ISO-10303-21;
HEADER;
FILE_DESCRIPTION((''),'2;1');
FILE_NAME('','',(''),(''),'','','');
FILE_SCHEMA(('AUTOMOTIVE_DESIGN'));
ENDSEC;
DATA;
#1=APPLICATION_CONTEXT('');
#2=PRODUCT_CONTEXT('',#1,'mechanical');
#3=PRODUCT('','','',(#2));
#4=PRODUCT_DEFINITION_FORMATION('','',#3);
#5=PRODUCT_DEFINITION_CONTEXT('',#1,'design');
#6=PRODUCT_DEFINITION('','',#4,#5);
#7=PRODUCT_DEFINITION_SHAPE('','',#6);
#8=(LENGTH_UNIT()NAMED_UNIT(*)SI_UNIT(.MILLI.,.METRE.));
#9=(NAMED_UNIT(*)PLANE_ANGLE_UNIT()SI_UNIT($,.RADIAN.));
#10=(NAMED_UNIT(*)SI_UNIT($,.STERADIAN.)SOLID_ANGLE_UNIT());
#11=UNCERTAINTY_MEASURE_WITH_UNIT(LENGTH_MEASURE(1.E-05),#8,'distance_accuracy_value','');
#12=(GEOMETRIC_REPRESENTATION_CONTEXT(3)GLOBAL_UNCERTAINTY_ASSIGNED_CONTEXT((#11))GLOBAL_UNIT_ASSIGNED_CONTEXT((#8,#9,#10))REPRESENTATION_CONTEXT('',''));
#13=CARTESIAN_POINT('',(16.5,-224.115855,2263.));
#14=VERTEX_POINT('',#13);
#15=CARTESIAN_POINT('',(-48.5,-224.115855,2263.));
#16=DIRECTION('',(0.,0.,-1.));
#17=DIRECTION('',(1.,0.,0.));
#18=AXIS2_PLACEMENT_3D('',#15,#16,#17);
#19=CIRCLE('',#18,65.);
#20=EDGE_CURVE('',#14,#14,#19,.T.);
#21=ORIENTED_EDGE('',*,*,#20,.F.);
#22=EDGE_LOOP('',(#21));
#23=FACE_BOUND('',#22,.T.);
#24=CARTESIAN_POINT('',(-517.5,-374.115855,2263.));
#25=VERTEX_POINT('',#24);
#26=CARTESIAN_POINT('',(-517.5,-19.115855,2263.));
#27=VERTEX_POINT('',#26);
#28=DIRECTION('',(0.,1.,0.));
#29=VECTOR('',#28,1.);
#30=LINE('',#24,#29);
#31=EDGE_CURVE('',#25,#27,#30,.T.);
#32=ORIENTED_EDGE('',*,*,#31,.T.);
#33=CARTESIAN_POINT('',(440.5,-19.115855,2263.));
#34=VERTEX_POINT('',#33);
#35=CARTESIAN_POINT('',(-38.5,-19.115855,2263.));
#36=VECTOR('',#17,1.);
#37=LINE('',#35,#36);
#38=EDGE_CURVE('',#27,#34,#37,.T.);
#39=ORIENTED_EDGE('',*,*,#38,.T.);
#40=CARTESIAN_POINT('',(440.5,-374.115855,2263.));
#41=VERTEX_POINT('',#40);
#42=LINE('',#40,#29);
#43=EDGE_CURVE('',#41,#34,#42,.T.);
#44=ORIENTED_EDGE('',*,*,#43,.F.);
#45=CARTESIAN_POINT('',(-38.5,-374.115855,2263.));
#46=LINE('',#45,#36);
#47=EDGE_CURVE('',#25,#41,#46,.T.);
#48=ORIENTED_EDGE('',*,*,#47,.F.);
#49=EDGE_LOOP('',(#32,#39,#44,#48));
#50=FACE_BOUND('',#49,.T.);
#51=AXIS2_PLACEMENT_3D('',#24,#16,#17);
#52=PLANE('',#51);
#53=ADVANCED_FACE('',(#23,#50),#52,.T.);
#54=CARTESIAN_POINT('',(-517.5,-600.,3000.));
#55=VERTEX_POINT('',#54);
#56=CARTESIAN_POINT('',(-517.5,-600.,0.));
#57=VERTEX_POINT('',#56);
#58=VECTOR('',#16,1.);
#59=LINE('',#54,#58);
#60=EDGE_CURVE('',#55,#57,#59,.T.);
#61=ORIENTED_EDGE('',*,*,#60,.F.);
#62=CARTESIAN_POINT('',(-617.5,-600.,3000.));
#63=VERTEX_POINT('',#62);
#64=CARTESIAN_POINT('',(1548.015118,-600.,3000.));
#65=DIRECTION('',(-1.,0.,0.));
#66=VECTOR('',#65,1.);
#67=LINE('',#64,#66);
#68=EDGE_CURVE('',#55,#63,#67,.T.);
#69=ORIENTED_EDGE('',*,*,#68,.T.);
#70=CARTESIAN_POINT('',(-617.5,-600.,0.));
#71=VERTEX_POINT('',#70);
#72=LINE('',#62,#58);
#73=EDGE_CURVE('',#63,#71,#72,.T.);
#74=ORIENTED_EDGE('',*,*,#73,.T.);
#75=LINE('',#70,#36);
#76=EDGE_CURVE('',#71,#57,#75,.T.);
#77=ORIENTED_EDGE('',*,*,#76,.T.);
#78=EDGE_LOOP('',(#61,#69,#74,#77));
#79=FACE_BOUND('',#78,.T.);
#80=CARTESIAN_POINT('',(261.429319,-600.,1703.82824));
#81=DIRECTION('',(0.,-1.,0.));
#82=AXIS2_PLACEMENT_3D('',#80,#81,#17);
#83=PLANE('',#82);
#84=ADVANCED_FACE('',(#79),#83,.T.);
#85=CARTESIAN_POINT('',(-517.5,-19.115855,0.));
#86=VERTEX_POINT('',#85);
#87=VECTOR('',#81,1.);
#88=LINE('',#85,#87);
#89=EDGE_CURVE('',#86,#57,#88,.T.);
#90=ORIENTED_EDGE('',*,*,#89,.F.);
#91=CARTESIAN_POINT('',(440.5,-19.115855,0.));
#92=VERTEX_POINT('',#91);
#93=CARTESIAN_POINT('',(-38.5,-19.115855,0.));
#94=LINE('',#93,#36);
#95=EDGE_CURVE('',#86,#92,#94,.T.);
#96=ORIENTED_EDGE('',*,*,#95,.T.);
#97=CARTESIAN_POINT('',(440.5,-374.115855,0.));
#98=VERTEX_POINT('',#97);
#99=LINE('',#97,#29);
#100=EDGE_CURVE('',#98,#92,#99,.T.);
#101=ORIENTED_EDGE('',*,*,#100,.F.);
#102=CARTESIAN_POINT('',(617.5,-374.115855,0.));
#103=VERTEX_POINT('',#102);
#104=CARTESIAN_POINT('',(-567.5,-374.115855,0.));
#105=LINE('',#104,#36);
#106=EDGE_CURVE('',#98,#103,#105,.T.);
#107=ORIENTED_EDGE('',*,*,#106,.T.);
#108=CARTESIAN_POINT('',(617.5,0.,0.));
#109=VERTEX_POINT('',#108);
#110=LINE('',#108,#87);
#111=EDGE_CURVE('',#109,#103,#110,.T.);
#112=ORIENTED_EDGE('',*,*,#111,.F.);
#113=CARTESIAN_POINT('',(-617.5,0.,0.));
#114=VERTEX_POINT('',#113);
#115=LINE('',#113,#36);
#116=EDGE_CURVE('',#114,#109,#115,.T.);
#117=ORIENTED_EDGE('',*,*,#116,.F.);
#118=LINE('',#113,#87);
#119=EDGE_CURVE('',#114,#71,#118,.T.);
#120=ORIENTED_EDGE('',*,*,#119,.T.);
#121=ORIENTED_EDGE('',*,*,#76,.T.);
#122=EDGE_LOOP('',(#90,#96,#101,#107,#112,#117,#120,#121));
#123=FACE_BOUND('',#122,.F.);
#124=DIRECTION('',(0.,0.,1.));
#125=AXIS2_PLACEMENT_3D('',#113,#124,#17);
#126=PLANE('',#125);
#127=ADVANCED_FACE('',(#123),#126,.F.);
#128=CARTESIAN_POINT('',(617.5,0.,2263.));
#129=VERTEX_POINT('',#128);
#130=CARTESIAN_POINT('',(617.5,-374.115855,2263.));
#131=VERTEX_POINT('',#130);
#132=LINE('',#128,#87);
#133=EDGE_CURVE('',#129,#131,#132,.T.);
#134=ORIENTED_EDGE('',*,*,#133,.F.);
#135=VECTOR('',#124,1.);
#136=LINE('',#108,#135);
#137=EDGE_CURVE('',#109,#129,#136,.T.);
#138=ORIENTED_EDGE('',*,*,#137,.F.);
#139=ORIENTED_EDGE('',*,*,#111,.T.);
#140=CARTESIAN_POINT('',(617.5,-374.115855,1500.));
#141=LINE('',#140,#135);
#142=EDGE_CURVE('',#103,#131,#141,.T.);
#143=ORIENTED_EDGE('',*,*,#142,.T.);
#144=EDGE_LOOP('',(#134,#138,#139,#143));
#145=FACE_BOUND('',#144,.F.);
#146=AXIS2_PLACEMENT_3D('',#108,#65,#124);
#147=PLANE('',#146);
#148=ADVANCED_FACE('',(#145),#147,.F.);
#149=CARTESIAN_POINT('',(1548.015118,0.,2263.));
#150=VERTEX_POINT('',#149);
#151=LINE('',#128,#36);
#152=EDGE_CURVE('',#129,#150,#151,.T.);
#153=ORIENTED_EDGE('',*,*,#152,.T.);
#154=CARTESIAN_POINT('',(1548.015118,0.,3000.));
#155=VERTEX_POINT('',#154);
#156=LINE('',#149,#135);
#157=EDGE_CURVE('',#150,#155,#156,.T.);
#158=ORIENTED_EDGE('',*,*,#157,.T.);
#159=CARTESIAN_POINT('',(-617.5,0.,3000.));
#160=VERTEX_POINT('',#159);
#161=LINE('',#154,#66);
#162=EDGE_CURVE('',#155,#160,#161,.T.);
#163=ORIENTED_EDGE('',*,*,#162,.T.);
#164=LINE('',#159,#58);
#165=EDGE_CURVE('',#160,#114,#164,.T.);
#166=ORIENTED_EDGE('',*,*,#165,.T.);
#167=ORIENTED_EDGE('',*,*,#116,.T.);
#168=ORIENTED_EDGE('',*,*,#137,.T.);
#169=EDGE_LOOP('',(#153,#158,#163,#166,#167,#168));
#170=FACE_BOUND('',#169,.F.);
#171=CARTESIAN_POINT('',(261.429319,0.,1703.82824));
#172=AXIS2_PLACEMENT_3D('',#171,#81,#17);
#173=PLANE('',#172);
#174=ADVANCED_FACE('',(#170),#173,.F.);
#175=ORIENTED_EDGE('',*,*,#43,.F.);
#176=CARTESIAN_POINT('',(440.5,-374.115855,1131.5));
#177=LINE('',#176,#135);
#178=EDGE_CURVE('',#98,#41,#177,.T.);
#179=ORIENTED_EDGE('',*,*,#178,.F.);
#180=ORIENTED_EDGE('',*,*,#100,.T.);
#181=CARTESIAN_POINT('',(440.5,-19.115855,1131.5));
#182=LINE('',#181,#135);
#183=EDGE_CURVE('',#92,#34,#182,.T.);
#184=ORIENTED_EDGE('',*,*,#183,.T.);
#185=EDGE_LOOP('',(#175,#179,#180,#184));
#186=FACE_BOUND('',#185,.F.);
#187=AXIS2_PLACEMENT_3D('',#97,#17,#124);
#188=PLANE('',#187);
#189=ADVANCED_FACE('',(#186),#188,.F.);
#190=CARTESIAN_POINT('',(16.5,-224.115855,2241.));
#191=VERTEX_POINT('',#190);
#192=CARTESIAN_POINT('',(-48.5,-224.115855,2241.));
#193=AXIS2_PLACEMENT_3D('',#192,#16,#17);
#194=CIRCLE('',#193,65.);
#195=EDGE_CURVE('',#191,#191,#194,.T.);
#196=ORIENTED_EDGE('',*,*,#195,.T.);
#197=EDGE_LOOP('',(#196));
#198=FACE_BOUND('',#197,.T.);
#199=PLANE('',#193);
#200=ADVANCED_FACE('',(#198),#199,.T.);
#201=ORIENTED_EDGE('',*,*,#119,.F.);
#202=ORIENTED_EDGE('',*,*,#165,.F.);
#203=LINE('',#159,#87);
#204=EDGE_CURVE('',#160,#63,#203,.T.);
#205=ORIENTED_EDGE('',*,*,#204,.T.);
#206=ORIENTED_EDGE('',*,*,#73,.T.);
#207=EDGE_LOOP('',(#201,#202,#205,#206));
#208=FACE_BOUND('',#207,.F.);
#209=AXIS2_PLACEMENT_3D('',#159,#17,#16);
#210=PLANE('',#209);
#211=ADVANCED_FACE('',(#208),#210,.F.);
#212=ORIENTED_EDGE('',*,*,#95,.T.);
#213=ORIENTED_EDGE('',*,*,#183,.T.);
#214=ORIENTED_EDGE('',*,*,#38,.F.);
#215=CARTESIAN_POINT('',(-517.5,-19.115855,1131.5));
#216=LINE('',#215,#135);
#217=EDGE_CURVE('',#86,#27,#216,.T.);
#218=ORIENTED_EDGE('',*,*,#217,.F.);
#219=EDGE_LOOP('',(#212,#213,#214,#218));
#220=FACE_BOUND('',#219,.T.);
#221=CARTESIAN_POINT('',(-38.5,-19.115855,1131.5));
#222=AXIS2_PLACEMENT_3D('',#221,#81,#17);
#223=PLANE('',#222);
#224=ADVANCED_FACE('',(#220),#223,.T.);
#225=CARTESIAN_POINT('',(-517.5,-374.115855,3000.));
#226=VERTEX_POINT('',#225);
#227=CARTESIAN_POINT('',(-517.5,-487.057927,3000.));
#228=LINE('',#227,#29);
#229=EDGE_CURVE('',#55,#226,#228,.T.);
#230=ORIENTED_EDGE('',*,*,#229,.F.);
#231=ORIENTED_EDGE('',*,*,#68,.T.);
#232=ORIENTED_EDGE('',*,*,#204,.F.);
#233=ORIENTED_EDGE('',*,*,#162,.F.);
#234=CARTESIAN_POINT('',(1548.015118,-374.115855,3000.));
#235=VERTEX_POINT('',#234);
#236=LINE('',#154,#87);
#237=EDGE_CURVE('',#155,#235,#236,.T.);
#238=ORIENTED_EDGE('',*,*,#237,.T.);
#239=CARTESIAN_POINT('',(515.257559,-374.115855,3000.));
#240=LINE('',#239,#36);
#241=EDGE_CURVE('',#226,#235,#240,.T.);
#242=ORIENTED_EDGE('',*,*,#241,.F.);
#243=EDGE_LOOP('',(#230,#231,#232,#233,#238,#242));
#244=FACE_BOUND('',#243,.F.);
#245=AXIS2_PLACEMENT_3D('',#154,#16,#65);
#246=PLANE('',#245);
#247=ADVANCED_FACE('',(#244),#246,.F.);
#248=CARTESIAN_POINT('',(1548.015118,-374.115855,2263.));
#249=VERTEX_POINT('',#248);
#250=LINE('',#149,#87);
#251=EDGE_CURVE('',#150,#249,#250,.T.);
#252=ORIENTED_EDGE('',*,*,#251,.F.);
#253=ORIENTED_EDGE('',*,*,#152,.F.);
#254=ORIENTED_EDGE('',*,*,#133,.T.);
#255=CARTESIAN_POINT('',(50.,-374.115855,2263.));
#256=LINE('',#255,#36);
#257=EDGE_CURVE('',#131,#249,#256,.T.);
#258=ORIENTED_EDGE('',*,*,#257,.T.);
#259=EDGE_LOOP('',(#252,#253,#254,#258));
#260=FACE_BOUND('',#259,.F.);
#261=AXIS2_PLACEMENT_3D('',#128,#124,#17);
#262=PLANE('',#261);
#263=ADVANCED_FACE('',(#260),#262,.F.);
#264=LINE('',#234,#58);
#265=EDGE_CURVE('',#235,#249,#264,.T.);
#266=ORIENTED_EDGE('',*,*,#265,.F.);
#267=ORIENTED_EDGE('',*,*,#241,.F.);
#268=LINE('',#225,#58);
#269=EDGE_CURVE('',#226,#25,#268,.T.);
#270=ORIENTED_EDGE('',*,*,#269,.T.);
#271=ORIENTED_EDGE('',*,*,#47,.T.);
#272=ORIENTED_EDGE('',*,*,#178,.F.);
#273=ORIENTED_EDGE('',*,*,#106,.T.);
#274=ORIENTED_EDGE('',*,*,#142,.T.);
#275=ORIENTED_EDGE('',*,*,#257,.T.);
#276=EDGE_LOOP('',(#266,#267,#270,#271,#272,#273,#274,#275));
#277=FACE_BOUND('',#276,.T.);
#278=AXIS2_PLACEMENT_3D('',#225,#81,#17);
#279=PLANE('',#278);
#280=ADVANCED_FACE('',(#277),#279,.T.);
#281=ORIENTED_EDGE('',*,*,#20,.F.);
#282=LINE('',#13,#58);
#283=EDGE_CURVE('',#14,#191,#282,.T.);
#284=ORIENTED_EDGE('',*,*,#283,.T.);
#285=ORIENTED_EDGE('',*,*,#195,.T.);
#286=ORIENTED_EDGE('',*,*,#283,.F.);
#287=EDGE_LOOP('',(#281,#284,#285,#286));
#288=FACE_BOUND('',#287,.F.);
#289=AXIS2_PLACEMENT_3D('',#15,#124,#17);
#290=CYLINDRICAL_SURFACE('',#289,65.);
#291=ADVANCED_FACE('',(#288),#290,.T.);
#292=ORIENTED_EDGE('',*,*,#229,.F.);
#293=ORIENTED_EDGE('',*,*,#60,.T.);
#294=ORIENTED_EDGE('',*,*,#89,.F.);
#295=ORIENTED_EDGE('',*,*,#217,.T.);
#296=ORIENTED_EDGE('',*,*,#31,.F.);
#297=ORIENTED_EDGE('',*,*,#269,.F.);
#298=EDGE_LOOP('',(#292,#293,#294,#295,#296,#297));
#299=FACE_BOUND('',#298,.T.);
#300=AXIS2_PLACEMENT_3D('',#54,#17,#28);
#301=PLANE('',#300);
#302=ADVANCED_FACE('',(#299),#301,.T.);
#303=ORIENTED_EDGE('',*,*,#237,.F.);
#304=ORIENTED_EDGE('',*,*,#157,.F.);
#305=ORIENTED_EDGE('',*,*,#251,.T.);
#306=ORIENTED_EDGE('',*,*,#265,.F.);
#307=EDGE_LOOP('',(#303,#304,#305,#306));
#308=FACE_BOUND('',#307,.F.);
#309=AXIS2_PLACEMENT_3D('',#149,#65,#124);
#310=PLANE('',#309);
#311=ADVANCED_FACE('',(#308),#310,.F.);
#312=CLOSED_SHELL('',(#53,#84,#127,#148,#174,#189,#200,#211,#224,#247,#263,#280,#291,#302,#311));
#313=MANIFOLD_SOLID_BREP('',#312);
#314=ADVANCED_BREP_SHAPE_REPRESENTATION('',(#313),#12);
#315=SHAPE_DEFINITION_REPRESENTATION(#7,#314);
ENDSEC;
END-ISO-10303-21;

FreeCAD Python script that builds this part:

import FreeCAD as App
import Part
import Sketcher
from FreeCAD import Vector
Q = App.Units.Quantity


def add_polygon(sketch, points):
    """Adds a closed chain of lines whose ends are joined by coincident constraints."""
    first, n = sketch.GeometryCount, len(points)
    for a, b in zip(points, points[1:] + points[:1]):
        sketch.addGeometry(Part.LineSegment(App.Vector(*a, 0), App.Vector(*b, 0)), False)
    for i in range(n):
        sketch.addConstraint(Sketcher.Constraint("Coincident", first + i, 2, first + (i + 1) % n, 1))

doc = App.newDocument("Part")
params = doc.addObject("Spreadsheet::Sheet", "Params")
for row, (alias, value) in enumerate([
    ("sketch1_width", "1235 mm"),
    ("sketch1_height", "3000 mm"),
    ("sketch1_height2", "2263 mm"),
    ("pad1_length", "600 mm"),
    ("pocket1_length", "4000 mm"),
    ("sketch3_width", "958 mm"),
    ("sketch3_height", "2263 mm"),
    ("pocket2_length", "355 mm"),
    ("sketch4_diameter", "130 mm"),
    ("pad2_length", "22 mm"),
], start=1):
    params.set(f"A{row}", alias)
    params.set(f"B{row}", "=" + value)
    params.setAlias(f"B{row}", alias)

body = doc.addObject("PartDesign::Body", "Body")

sketch1 = body.newObject("Sketcher::SketchObject", "Sketch")
sketch1.AttachmentSupport = (doc.getObject("XZ_Plane"), [""])
sketch1.MapMode = "FlatFace"
add_polygon(sketch1, [(-617.5, 3000), (-617.5, 0), (617.5, 0), (617.5, 2263), (1548.015118, 2263), (1548.015118, 3000)])
sketch1.addConstraint([
    Sketcher.Constraint("Vertical", 0),
    Sketcher.Constraint("Horizontal", 1),
    Sketcher.Constraint("Vertical", 2),
    Sketcher.Constraint("Horizontal", 3),
    Sketcher.Constraint("Vertical", 4),
    Sketcher.Constraint("Horizontal", 5),
    Sketcher.Constraint("Symmetric", 0, 2, 1, 2, -1, 1),
    Sketcher.Constraint("DistanceX", 1, 1, 1, 2, Q("1235 mm")),
    Sketcher.Constraint("DistanceY", 0, 2, 0, 1, Q("3000 mm")),
    Sketcher.Constraint("DistanceY", 2, 1, 2, 2, Q("2263 mm")),
    Sketcher.Constraint("DistanceX", 3, 1, 3, 2, Q("930.515118 mm")),
])
sketch1.setExpression("Constraints[13]", "Params.sketch1_width")
sketch1.setExpression("Constraints[14]", "Params.sketch1_height")
sketch1.setExpression("Constraints[15]", "Params.sketch1_height2")
pad1 = body.newObject("PartDesign::Pad", "Pad")
pad1.Profile = sketch1
pad1.setExpression("Length", "Params.pad1_length")

sketch2 = body.newObject("Sketcher::SketchObject", "Sketch001")
sketch2.AttachmentSupport = (doc.getObject("XY_Plane"), [""])
sketch2.MapMode = "FlatFace"
sketch2.AttachmentOffset = App.Placement(Vector(0, 0, 3000), App.Rotation())
add_polygon(sketch2, [(-517.5, -374.115855), (-517.5, -600), (1548.015118, -600), (1548.015118, -374.115855)])
sketch2.addConstraint([
    Sketcher.Constraint("Vertical", 0),
    Sketcher.Constraint("Horizontal", 1),
    Sketcher.Constraint("Vertical", 2),
    Sketcher.Constraint("Horizontal", 3),
    Sketcher.Constraint("DistanceY", 0, 2, -1, 1, Q("600 mm")),
    Sketcher.Constraint("DistanceX", 0, 2, -1, 1, Q("517.5 mm")),
    Sketcher.Constraint("DistanceX", 1, 1, 1, 2, Q("2065.515118 mm")),
    Sketcher.Constraint("DistanceY", 0, 2, 0, 1, Q("225.884145 mm")),
])
pocket1 = body.newObject("PartDesign::Pocket", "Pocket")
pocket1.Profile = sketch2
pocket1.setExpression("Length", "Params.pocket1_length")

sketch3 = body.newObject("Sketcher::SketchObject", "Sketch002")
sketch3.AttachmentSupport = (doc.getObject("XZ_Plane"), [""])
sketch3.MapMode = "FlatFace"
sketch3.AttachmentOffset = App.Placement(Vector(0, 0, 374.115855), App.Rotation())
add_polygon(sketch3, [(-517.5, 2263), (-517.5, 0), (440.5, 0), (440.5, 2263)])
sketch3.addConstraint([
    Sketcher.Constraint("Vertical", 0),
    Sketcher.Constraint("Horizontal", 1),
    Sketcher.Constraint("Vertical", 2),
    Sketcher.Constraint("Horizontal", 3),
    Sketcher.Constraint("PointOnObject", 0, 2, -1),
    Sketcher.Constraint("DistanceX", 1, 1, 1, 2, Q("958 mm")),
    Sketcher.Constraint("DistanceY", 0, 2, 0, 1, Q("2263 mm")),
    Sketcher.Constraint("DistanceX", 0, 2, -1, 1, Q("517.5 mm")),
])
sketch3.setExpression("Constraints[9]", "Params.sketch3_width")
sketch3.setExpression("Constraints[10]", "Params.sketch3_height")
pocket2 = body.newObject("PartDesign::Pocket", "Pocket001")
pocket2.Profile = sketch3
pocket2.setExpression("Length", "Params.pocket2_length")

sketch4 = body.newObject("Sketcher::SketchObject", "Sketch003")
sketch4.AttachmentSupport = (doc.getObject("XY_Plane"), [""])
sketch4.MapMode = "FlatFace"
sketch4.AttachmentOffset = App.Placement(Vector(0, 0, 2263), App.Rotation())
sketch4.addGeometry(Part.Circle(Vector(-48.5, -224.115855, 0), Vector(0, 0, 1), 65), False)
sketch4.addConstraint([
    Sketcher.Constraint("Diameter", 0, Q("130 mm")),
    Sketcher.Constraint("DistanceX", 0, 3, -1, 1, Q("48.5 mm")),
    Sketcher.Constraint("DistanceY", 0, 3, -1, 1, Q("224.115855 mm")),
])
sketch4.setExpression("Constraints[0]", "Params.sketch4_diameter")
pad2 = body.newObject("PartDesign::Pad", "Pad001")
pad2.Profile = sketch4
pad2.setExpression("Length", "Params.pad2_length")
pad2.Reversed = True

doc.recompute()
